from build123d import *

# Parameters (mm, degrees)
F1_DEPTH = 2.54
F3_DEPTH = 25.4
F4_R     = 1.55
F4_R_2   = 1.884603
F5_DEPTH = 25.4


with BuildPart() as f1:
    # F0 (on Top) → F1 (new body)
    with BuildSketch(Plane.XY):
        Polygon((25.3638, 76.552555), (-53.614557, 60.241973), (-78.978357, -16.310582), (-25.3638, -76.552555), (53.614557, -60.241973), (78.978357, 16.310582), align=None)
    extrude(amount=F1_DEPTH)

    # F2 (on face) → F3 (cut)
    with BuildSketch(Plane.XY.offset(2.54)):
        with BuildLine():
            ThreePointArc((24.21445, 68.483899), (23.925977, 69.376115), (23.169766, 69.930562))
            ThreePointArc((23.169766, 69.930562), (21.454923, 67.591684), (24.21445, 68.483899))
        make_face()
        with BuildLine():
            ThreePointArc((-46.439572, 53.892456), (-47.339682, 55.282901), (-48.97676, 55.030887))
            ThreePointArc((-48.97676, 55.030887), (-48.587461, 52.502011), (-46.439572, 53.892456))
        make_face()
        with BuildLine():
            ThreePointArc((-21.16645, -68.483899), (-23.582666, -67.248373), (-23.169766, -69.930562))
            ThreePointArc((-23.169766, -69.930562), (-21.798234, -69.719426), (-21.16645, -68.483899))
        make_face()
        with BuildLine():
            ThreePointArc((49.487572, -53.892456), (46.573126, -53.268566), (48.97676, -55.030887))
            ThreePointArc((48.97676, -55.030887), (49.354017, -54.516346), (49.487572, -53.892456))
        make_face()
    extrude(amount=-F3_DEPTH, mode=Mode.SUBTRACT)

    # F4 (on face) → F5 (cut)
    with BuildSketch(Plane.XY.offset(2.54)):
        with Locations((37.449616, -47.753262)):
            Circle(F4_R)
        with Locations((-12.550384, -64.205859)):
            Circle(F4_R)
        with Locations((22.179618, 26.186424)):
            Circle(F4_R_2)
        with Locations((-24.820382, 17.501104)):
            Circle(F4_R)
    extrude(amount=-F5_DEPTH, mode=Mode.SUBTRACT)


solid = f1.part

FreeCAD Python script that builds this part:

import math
import FreeCAD as App
import Part
import Sketcher

V = App.Vector
Q = App.Units.Quantity

doc = App.newDocument("Part")
body = doc.addObject("PartDesign::Body", "Body")

# Sketch on XY plane
sketch1 = body.newObject("Sketcher::SketchObject", "Sketch")
sketch1.AttachmentSupport = (doc.getObject("XY_Plane"), [""])
sketch1.MapMode = "FlatFace"
sketch1.addGeometry([
    Part.LineSegment(V(25, 77, 0), V(-54, 60, 0)),  # 0
    Part.LineSegment(V(-54, 60, 0), V(-79, -16, 0)),  # 1
    Part.LineSegment(V(-79, -16, 0), V(-25, -77, 0)),  # 2
    Part.LineSegment(V(-25, -77, 0), V(54, -60, 0)),  # 3
    Part.LineSegment(V(54, -60, 0), V(79, 16, 0)),  # 4
    Part.LineSegment(V(79, 16, 0), V(25, 77, 0)),  # 5
], False)
sketch1.addConstraint([
    Sketcher.Constraint("Coincident", 0, 2, 1, 1),
    Sketcher.Constraint("Coincident", 1, 2, 2, 1),
    Sketcher.Constraint("Coincident", 2, 2, 3, 1),
    Sketcher.Constraint("Coincident", 3, 2, 4, 1),
    Sketcher.Constraint("Coincident", 4, 2, 5, 1),
    Sketcher.Constraint("Coincident", 5, 2, 0, 1),
    Sketcher.Constraint("Symmetric", 0, 2, 3, 2, -1, 1),
    Sketcher.Constraint("Symmetric", 1, 2, 4, 2, -1, 1),
    Sketcher.Constraint("Symmetric", 2, 2, 5, 2, -1, 1),
    Sketcher.Constraint("Equal", 0, 1),
    Sketcher.Constraint("Equal", 1, 2),
    Sketcher.Constraint("Distance", 0, Q("3.175 in")),
    Sketcher.Constraint("DistanceX", 2, 2, -1, 1, Q("25.3638 mm")),
    Sketcher.Constraint("DistanceX", 1, 2, 0, 2, Q("25.3638 mm")),
    Sketcher.Constraint("DistanceY", 1, 2, -1, 1, Q("16.310582 mm")),
])
pad1 = body.newObject("PartDesign::Pad", "Pad")
pad1.Profile = sketch1
pad1.Length = Q("0.1 in")

# Sketch on XY plane
sketch2 = body.newObject("Sketcher::SketchObject", "Sketch001")
sketch2.AttachmentSupport = (doc.getObject("XY_Plane"), [""])
sketch2.MapMode = "FlatFace"
sketch2.AttachmentOffset = App.Placement(V(0, 0, 0.1 * 25.4), App.Rotation())
sketch2.addGeometry([
    Part.ArcOfCircle(Part.Circle(V(22.7, 68.5, 0), V(0, 0, 1), 1.5), math.radians(0), math.radians(72)),  # 0
    Part.ArcOfCircle(Part.Circle(V(22.7, 68.5, 0), V(0, 0, 1), 1.5), math.radians(72), math.radians(360)),  # 1
    Part.ArcOfCircle(Part.Circle(V(-48, 53.9, 0), V(0, 0, 1), 1.5), math.radians(0), math.radians(132)),  # 2
    Part.ArcOfCircle(Part.Circle(V(-48, 53.9, 0), V(0, 0, 1), 1.5), math.radians(132), math.radians(360)),  # 3
    Part.ArcOfCircle(Part.Circle(V(-22.7, -68.5, 0), V(0, 0, 1), 1.5), math.radians(0), math.radians(252)),  # 4
    Part.ArcOfCircle(Part.Circle(V(-22.7, -68.5, 0), V(0, 0, 1), 1.5), math.radians(-108), math.radians(0)),  # 5
    Part.ArcOfCircle(Part.Circle(V(48, -53.9, 0), V(0, 0, 1), 1.5), math.radians(0), math.radians(312)),  # 6
    Part.ArcOfCircle(Part.Circle(V(48, -53.9, 0), V(0, 0, 1), 1.5), math.radians(-48), math.radians(0)),  # 7
], False)
sketch2.addConstraint([
    Sketcher.Constraint("Tangent", 0, 1, 1, 2),
    Sketcher.Constraint("Coincident", 1, 1, 0, 2),
    Sketcher.Constraint("Tangent", 2, 1, 3, 2),
    Sketcher.Constraint("Coincident", 3, 1, 2, 2),
    Sketcher.Constraint("Tangent", 4, 1, 5, 2),
    Sketcher.Constraint("Coincident", 5, 1, 4, 2),
    Sketcher.Constraint("Tangent", 6, 1, 7, 2),
    Sketcher.Constraint("Coincident", 7, 1, 6, 2),
    Sketcher.Constraint("Equal", 1, 2),
    Sketcher.Constraint("Equal", 3, 4),
    Sketcher.Constraint("Equal", 5, 6),
    Sketcher.Constraint("Symmetric", 0, 3, 4, 3, -1, 1),
    Sketcher.Constraint("Symmetric", 2, 3, 6, 3, -1, 1),
    Sketcher.Constraint("Horizontal", 1, 3, 0, 1),
    Sketcher.Constraint("Horizontal", 3, 3, 2, 1),
    Sketcher.Constraint("Horizontal", 5, 3, 4, 1),
    Sketcher.Constraint("Horizontal", 7, 3, 6, 1),
    Sketcher.Constraint("Radius", 0, Q("0.06 in")),
    Sketcher.Constraint("DistanceY", -1, 1, 0, 3, Q("68.483899 mm")),
    Sketcher.Constraint("DistanceX", 4, 3, 0, 3, Q("45.380899 mm")),
    Sketcher.Constraint("DistanceX", 2, 3, -1, 1, Q("47.963572 mm")),
    Sketcher.Constraint("DistanceY", -1, 1, 1, 1, Q("69.930562 mm")),
    Sketcher.Constraint("DistanceX", 3, 1, -1, 1, Q("48.97676 mm")),
    Sketcher.Constraint("DistanceY", 5, 1, -1, 1, Q("69.930562 mm")),
    Sketcher.Constraint("DistanceX", -1, 1, 7, 1, Q("48.97676 mm")),
    Sketcher.Constraint("DistanceY", 6, 3, 3, 3, Q("107.784912 mm")),
])
pocket1 = body.newObject("PartDesign::Pocket", "Pocket")
pocket1.Profile = sketch2
pocket1.Length = Q("1 in")

# Sketch on XY plane
sketch3 = body.newObject("Sketcher::SketchObject", "Sketch002")
sketch3.AttachmentSupport = (doc.getObject("XY_Plane"), [""])
sketch3.MapMode = "FlatFace"
sketch3.AttachmentOffset = App.Placement(V(0, 0, 0.1 * 25.4), App.Rotation())
sketch3.addGeometry([
    Part.Circle(V(37.4, -47.8, 0), V(0, 0, 1), 1.6),
    Part.Circle(V(-12.6, -64.2, 0), V(0, 0, 1), 1.6),
    Part.Circle(V(22.2, 26.2, 0), V(0, 0, 1), 1.9),
    Part.Circle(V(-24.8, 17.5, 0), V(0, 0, 1), 1.6),
], False)
sketch3.addConstraint([
    Sketcher.Constraint("Equal", 0, 1),
    Sketcher.Constraint("Equal", 1, 3),
    Sketcher.Constraint("Diameter", 0, Q("3.1 mm")),
    Sketcher.Constraint("Diameter", 2, Q("3.769206 mm")),
    Sketcher.Constraint("DistanceX", 1, 3, 0, 3, Q("50 mm")),
    Sketcher.Constraint("DistanceX", 3, 3, 2, 3, Q("47 mm")),
    Sketcher.Constraint("DistanceY", 1, 3, -1, 1, Q("64.205859 mm")),
    Sketcher.Constraint("DistanceX", -1, 1, 2, 3, Q("22.179618 mm")),
    Sketcher.Constraint("DistanceY", 3, 3, 2, 3, Q("8.68532 mm")),
    Sketcher.Constraint("DistanceX", -1, 1, 0, 3, Q("37.449616 mm")),
    Sketcher.Constraint("DistanceY", 0, 3, -1, 1, Q("47.753262 mm")),
    Sketcher.Constraint("DistanceY", -1, 1, 2, 3, Q("26.186424 mm")),
])
pocket2 = body.newObject("PartDesign::Pocket", "Pocket001")
pocket2.Profile = sketch3
pocket2.Length = Q("1 in")

doc.recompute()
